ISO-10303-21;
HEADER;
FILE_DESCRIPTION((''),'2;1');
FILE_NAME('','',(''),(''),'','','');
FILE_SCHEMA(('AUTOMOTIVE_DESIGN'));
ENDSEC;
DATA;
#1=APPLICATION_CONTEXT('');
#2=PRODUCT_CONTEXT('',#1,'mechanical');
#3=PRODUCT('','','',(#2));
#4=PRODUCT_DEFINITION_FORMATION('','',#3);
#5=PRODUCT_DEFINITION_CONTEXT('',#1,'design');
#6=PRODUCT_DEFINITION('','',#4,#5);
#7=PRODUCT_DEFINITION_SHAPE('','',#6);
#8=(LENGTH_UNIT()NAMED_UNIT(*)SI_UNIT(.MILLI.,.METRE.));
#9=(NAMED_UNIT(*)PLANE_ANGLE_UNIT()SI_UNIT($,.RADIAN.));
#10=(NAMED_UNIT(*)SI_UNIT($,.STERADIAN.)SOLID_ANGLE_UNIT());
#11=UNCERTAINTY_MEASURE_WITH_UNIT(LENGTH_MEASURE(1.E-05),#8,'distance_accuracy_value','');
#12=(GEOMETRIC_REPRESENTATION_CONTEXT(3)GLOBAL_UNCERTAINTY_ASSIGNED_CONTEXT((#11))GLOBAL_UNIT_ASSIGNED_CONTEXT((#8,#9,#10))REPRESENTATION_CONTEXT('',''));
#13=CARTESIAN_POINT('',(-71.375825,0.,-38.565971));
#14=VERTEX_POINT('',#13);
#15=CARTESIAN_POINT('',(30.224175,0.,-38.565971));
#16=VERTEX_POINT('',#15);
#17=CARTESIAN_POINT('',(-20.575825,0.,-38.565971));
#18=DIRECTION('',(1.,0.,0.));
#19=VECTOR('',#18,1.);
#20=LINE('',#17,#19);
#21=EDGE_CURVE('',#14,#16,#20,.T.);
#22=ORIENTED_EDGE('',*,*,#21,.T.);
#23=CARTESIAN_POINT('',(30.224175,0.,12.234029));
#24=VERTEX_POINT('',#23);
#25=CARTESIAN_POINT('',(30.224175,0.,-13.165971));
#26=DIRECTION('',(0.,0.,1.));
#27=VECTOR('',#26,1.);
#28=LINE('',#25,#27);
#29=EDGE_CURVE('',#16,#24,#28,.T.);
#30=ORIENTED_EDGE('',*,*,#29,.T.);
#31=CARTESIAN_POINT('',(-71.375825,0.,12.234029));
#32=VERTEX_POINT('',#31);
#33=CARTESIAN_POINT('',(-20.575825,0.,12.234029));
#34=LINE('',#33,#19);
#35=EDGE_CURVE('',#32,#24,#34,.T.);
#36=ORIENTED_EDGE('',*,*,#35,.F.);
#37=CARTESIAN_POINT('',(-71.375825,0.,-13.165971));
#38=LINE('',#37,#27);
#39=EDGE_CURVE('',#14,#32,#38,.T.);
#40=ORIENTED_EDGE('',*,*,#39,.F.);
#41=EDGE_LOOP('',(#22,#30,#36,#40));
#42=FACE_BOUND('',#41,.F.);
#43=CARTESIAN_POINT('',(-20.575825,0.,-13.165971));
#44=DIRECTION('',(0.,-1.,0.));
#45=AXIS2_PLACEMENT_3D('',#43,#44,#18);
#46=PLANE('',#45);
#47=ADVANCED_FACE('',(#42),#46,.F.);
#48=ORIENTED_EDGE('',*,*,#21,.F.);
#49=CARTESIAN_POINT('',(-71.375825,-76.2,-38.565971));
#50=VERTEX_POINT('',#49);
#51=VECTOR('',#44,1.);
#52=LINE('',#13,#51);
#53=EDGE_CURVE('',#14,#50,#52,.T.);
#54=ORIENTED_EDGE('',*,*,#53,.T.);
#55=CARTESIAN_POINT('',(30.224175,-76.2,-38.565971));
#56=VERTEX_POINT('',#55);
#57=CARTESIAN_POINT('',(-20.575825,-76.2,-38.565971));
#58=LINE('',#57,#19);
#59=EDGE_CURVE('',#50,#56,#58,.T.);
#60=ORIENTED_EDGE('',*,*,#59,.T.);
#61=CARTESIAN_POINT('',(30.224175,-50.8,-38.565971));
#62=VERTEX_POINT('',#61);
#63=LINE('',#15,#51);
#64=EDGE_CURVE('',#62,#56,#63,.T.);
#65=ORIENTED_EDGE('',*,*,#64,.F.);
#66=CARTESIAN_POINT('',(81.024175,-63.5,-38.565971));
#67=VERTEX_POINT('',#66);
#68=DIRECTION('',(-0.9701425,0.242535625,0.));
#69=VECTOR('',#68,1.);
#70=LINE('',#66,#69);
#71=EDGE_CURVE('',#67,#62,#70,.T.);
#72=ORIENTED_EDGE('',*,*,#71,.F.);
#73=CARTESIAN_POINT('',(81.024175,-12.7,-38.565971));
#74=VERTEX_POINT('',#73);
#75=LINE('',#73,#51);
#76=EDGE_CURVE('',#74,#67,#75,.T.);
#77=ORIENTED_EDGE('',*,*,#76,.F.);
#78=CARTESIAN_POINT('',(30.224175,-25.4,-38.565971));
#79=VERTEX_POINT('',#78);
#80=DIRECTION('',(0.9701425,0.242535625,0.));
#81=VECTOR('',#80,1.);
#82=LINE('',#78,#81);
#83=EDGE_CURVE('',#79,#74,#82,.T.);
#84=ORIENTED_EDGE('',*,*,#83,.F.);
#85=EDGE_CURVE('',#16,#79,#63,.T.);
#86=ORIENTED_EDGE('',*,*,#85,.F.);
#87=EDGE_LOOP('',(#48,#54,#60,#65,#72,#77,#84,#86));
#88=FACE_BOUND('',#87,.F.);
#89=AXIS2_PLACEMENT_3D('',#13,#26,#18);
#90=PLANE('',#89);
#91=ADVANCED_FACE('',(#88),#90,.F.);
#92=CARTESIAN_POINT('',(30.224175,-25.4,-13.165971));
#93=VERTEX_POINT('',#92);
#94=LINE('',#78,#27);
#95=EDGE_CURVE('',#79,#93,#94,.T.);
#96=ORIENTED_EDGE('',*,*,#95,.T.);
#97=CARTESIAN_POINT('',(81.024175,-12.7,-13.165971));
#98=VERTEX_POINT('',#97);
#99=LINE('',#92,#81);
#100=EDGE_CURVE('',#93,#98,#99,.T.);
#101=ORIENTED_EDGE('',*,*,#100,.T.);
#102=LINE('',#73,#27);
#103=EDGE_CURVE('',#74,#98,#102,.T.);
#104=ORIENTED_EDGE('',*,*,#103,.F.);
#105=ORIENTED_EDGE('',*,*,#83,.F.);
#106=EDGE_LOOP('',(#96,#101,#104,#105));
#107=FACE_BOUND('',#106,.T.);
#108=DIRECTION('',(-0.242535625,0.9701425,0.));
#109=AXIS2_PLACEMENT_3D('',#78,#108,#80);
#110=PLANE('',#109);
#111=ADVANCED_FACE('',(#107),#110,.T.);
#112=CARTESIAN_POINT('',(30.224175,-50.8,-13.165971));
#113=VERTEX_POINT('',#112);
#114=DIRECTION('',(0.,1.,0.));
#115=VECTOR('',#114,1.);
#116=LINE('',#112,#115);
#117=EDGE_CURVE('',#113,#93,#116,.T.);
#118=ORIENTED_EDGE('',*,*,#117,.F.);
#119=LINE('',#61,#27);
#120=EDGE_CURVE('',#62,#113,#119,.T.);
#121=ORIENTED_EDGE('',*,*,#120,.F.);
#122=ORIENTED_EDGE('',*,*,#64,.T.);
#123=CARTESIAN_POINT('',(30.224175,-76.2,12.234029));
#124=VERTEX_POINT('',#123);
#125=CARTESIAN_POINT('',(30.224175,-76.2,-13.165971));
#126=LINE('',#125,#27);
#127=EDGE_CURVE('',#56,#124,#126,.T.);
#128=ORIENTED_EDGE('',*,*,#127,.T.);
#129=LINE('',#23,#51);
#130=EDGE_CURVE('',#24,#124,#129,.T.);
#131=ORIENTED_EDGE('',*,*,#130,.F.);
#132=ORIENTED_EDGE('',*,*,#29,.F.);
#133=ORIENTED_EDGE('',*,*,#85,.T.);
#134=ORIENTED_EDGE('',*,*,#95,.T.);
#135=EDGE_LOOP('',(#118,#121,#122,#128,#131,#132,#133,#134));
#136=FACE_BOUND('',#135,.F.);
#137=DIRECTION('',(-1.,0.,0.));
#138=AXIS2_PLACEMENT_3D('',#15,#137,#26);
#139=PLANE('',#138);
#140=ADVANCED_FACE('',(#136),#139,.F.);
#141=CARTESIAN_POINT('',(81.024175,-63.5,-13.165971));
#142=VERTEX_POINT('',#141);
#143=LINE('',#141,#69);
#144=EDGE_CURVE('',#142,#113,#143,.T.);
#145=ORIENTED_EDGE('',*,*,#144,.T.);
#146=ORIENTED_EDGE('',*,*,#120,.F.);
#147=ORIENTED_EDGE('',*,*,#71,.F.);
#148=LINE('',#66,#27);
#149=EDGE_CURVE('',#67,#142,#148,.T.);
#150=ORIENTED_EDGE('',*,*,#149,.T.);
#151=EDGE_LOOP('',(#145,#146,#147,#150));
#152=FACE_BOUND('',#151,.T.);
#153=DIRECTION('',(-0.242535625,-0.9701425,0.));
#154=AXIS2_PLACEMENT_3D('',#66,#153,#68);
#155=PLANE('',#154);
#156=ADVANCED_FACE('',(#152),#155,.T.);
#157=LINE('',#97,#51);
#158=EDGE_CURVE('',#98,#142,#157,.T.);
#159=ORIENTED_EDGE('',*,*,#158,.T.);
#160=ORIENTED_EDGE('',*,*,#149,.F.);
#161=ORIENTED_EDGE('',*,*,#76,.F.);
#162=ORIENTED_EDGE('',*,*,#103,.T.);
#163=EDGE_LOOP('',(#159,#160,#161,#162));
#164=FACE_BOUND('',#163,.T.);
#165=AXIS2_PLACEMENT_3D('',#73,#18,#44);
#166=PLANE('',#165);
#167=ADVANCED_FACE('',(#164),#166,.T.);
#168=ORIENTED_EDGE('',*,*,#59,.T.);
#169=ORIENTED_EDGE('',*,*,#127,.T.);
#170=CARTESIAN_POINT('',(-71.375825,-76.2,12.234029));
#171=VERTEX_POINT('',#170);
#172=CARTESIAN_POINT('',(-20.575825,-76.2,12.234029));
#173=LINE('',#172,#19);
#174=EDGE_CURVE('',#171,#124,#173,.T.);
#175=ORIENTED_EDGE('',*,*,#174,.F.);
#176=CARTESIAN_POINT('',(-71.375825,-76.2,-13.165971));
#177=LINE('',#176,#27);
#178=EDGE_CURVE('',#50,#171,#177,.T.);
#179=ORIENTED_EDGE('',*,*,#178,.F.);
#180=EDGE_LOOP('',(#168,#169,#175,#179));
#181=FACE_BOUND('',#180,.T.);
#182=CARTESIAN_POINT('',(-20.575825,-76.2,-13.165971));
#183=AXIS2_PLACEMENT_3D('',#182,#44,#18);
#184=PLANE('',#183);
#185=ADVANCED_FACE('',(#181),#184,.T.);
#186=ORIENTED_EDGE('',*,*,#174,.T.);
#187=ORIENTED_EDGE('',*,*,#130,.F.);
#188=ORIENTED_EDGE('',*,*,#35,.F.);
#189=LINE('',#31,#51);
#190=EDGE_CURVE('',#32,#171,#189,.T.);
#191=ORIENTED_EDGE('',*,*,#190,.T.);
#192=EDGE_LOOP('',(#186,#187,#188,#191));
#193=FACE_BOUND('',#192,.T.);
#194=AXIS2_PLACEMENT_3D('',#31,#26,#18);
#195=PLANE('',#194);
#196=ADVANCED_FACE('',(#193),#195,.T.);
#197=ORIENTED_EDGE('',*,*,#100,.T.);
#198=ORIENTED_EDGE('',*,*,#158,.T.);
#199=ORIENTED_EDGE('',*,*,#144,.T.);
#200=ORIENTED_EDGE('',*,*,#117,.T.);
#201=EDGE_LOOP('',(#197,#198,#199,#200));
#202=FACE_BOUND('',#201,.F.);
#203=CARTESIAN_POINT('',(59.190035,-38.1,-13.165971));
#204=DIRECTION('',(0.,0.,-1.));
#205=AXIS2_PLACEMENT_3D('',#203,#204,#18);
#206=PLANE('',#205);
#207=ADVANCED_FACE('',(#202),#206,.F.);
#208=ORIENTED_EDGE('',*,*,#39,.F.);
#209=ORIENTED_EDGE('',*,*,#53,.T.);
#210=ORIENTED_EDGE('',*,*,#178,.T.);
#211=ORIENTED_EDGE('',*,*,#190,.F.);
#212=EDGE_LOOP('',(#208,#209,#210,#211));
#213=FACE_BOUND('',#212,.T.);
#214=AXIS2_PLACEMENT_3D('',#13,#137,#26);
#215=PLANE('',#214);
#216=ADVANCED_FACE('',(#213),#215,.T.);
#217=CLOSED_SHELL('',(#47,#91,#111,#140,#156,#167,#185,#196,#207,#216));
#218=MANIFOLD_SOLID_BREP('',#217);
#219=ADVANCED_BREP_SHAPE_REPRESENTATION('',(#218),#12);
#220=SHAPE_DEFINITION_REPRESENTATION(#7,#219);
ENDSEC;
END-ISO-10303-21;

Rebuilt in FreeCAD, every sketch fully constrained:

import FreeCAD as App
import Part
import Sketcher
Q = App.Units.Quantity

doc = App.newDocument("Part")
body = doc.addObject("PartDesign::Body", "Body")

sketch1 = doc.addObject("Sketcher::SketchObject", "Sketch")
body.addObject(sketch1)
sketch1.AttachmentSupport = (doc.XZ_Plane, [""])
sketch1.MapMode = "FlatFace"
sketch1.addGeometry(Part.LineSegment(App.Vector(-71, 12, 0), App.Vector(-71, -39, 0)), False)
sketch1.addGeometry(Part.LineSegment(App.Vector(-71, -39, 0), App.Vector(30, -39, 0)), False)
sketch1.addGeometry(Part.LineSegment(App.Vector(30, -39, 0), App.Vector(30, 12, 0)), False)
sketch1.addGeometry(Part.LineSegment(App.Vector(30, 12, 0), App.Vector(-71, 12, 0)), False)
sketch1.addConstraint(Sketcher.Constraint("Coincident", 0, 2, 1, 1))
sketch1.addConstraint(Sketcher.Constraint("Coincident", 1, 2, 2, 1))
sketch1.addConstraint(Sketcher.Constraint("Coincident", 2, 2, 3, 1))
sketch1.addConstraint(Sketcher.Constraint("Coincident", 3, 2, 0, 1))
sketch1.addConstraint(Sketcher.Constraint("Vertical", 0))
sketch1.addConstraint(Sketcher.Constraint("Horizontal", 1))
sketch1.addConstraint(Sketcher.Constraint("Vertical", 2))
sketch1.addConstraint(Sketcher.Constraint("Horizontal", 3))
sketch1.addConstraint(Sketcher.Constraint("DistanceX", 1, 1, 1, 2, Q("4 in")))
sketch1.addConstraint(Sketcher.Constraint("DistanceY", 0, 2, 0, 1, Q("2 in")))
sketch1.addConstraint(Sketcher.Constraint("DistanceY", 0, 2, -1, 1, Q("38.565971 mm")))
sketch1.addConstraint(Sketcher.Constraint("DistanceX", 0, 2, -1, 1, Q("71.375825 mm")))
pad1 = doc.addObject("PartDesign::Pad", "Pad")
body.addObject(pad1)
pad1.Profile = sketch1
pad1.Length = Q("3 in")

sketch2 = doc.addObject("Sketcher::SketchObject", "Sketch001")
body.addObject(sketch2)
sketch2.AttachmentSupport = (doc.XY_Plane, [""])
sketch2.MapMode = "FlatFace"
sketch2.AttachmentOffset = App.Placement(App.Vector(0, 0, -38.565971), App.Rotation())
sketch2.addGeometry(Part.LineSegment(App.Vector(81, -64, 0), App.Vector(30, -51, 0)), False)
sketch2.addGeometry(Part.LineSegment(App.Vector(30, -51, 0), App.Vector(30, -25, 0)), False)
sketch2.addGeometry(Part.LineSegment(App.Vector(30, -25, 0), App.Vector(81, -13, 0)), False)
sketch2.addGeometry(Part.LineSegment(App.Vector(81, -13, 0), App.Vector(81, -64, 0)), False)
sketch2.addConstraint(Sketcher.Constraint("Coincident", 0, 2, 1, 1))
sketch2.addConstraint(Sketcher.Constraint("Coincident", 1, 2, 2, 1))
sketch2.addConstraint(Sketcher.Constraint("Coincident", 2, 2, 3, 1))
sketch2.addConstraint(Sketcher.Constraint("Coincident", 3, 2, 0, 1))
sketch2.addConstraint(Sketcher.Constraint("Vertical", 1))
sketch2.addConstraint(Sketcher.Constraint("Vertical", 3))
sketch2.addConstraint(Sketcher.Constraint("Equal", 0, 2))
sketch2.addConstraint(Sketcher.Constraint("DistanceY", 1, 1, 1, 2, Q("1 in")))
sketch2.addConstraint(Sketcher.Constraint("DistanceY", 3, 2, 3, 1, Q("2 in")))
sketch2.addConstraint(Sketcher.Constraint("DistanceY", 0, 2, -1, 1, Q("2 in")))
sketch2.addConstraint(Sketcher.Constraint("DistanceX", 1, 2, 2, 2, Q("2 in")))
sketch2.addConstraint(Sketcher.Constraint("DistanceX", -1, 1, 0, 2, Q("30.224175 mm")))
pad2 = doc.addObject("PartDesign::Pad", "Pad001")
body.addObject(pad2)
pad2.Profile = sketch2
pad2.Length = Q("1 in")

doc.recompute()
